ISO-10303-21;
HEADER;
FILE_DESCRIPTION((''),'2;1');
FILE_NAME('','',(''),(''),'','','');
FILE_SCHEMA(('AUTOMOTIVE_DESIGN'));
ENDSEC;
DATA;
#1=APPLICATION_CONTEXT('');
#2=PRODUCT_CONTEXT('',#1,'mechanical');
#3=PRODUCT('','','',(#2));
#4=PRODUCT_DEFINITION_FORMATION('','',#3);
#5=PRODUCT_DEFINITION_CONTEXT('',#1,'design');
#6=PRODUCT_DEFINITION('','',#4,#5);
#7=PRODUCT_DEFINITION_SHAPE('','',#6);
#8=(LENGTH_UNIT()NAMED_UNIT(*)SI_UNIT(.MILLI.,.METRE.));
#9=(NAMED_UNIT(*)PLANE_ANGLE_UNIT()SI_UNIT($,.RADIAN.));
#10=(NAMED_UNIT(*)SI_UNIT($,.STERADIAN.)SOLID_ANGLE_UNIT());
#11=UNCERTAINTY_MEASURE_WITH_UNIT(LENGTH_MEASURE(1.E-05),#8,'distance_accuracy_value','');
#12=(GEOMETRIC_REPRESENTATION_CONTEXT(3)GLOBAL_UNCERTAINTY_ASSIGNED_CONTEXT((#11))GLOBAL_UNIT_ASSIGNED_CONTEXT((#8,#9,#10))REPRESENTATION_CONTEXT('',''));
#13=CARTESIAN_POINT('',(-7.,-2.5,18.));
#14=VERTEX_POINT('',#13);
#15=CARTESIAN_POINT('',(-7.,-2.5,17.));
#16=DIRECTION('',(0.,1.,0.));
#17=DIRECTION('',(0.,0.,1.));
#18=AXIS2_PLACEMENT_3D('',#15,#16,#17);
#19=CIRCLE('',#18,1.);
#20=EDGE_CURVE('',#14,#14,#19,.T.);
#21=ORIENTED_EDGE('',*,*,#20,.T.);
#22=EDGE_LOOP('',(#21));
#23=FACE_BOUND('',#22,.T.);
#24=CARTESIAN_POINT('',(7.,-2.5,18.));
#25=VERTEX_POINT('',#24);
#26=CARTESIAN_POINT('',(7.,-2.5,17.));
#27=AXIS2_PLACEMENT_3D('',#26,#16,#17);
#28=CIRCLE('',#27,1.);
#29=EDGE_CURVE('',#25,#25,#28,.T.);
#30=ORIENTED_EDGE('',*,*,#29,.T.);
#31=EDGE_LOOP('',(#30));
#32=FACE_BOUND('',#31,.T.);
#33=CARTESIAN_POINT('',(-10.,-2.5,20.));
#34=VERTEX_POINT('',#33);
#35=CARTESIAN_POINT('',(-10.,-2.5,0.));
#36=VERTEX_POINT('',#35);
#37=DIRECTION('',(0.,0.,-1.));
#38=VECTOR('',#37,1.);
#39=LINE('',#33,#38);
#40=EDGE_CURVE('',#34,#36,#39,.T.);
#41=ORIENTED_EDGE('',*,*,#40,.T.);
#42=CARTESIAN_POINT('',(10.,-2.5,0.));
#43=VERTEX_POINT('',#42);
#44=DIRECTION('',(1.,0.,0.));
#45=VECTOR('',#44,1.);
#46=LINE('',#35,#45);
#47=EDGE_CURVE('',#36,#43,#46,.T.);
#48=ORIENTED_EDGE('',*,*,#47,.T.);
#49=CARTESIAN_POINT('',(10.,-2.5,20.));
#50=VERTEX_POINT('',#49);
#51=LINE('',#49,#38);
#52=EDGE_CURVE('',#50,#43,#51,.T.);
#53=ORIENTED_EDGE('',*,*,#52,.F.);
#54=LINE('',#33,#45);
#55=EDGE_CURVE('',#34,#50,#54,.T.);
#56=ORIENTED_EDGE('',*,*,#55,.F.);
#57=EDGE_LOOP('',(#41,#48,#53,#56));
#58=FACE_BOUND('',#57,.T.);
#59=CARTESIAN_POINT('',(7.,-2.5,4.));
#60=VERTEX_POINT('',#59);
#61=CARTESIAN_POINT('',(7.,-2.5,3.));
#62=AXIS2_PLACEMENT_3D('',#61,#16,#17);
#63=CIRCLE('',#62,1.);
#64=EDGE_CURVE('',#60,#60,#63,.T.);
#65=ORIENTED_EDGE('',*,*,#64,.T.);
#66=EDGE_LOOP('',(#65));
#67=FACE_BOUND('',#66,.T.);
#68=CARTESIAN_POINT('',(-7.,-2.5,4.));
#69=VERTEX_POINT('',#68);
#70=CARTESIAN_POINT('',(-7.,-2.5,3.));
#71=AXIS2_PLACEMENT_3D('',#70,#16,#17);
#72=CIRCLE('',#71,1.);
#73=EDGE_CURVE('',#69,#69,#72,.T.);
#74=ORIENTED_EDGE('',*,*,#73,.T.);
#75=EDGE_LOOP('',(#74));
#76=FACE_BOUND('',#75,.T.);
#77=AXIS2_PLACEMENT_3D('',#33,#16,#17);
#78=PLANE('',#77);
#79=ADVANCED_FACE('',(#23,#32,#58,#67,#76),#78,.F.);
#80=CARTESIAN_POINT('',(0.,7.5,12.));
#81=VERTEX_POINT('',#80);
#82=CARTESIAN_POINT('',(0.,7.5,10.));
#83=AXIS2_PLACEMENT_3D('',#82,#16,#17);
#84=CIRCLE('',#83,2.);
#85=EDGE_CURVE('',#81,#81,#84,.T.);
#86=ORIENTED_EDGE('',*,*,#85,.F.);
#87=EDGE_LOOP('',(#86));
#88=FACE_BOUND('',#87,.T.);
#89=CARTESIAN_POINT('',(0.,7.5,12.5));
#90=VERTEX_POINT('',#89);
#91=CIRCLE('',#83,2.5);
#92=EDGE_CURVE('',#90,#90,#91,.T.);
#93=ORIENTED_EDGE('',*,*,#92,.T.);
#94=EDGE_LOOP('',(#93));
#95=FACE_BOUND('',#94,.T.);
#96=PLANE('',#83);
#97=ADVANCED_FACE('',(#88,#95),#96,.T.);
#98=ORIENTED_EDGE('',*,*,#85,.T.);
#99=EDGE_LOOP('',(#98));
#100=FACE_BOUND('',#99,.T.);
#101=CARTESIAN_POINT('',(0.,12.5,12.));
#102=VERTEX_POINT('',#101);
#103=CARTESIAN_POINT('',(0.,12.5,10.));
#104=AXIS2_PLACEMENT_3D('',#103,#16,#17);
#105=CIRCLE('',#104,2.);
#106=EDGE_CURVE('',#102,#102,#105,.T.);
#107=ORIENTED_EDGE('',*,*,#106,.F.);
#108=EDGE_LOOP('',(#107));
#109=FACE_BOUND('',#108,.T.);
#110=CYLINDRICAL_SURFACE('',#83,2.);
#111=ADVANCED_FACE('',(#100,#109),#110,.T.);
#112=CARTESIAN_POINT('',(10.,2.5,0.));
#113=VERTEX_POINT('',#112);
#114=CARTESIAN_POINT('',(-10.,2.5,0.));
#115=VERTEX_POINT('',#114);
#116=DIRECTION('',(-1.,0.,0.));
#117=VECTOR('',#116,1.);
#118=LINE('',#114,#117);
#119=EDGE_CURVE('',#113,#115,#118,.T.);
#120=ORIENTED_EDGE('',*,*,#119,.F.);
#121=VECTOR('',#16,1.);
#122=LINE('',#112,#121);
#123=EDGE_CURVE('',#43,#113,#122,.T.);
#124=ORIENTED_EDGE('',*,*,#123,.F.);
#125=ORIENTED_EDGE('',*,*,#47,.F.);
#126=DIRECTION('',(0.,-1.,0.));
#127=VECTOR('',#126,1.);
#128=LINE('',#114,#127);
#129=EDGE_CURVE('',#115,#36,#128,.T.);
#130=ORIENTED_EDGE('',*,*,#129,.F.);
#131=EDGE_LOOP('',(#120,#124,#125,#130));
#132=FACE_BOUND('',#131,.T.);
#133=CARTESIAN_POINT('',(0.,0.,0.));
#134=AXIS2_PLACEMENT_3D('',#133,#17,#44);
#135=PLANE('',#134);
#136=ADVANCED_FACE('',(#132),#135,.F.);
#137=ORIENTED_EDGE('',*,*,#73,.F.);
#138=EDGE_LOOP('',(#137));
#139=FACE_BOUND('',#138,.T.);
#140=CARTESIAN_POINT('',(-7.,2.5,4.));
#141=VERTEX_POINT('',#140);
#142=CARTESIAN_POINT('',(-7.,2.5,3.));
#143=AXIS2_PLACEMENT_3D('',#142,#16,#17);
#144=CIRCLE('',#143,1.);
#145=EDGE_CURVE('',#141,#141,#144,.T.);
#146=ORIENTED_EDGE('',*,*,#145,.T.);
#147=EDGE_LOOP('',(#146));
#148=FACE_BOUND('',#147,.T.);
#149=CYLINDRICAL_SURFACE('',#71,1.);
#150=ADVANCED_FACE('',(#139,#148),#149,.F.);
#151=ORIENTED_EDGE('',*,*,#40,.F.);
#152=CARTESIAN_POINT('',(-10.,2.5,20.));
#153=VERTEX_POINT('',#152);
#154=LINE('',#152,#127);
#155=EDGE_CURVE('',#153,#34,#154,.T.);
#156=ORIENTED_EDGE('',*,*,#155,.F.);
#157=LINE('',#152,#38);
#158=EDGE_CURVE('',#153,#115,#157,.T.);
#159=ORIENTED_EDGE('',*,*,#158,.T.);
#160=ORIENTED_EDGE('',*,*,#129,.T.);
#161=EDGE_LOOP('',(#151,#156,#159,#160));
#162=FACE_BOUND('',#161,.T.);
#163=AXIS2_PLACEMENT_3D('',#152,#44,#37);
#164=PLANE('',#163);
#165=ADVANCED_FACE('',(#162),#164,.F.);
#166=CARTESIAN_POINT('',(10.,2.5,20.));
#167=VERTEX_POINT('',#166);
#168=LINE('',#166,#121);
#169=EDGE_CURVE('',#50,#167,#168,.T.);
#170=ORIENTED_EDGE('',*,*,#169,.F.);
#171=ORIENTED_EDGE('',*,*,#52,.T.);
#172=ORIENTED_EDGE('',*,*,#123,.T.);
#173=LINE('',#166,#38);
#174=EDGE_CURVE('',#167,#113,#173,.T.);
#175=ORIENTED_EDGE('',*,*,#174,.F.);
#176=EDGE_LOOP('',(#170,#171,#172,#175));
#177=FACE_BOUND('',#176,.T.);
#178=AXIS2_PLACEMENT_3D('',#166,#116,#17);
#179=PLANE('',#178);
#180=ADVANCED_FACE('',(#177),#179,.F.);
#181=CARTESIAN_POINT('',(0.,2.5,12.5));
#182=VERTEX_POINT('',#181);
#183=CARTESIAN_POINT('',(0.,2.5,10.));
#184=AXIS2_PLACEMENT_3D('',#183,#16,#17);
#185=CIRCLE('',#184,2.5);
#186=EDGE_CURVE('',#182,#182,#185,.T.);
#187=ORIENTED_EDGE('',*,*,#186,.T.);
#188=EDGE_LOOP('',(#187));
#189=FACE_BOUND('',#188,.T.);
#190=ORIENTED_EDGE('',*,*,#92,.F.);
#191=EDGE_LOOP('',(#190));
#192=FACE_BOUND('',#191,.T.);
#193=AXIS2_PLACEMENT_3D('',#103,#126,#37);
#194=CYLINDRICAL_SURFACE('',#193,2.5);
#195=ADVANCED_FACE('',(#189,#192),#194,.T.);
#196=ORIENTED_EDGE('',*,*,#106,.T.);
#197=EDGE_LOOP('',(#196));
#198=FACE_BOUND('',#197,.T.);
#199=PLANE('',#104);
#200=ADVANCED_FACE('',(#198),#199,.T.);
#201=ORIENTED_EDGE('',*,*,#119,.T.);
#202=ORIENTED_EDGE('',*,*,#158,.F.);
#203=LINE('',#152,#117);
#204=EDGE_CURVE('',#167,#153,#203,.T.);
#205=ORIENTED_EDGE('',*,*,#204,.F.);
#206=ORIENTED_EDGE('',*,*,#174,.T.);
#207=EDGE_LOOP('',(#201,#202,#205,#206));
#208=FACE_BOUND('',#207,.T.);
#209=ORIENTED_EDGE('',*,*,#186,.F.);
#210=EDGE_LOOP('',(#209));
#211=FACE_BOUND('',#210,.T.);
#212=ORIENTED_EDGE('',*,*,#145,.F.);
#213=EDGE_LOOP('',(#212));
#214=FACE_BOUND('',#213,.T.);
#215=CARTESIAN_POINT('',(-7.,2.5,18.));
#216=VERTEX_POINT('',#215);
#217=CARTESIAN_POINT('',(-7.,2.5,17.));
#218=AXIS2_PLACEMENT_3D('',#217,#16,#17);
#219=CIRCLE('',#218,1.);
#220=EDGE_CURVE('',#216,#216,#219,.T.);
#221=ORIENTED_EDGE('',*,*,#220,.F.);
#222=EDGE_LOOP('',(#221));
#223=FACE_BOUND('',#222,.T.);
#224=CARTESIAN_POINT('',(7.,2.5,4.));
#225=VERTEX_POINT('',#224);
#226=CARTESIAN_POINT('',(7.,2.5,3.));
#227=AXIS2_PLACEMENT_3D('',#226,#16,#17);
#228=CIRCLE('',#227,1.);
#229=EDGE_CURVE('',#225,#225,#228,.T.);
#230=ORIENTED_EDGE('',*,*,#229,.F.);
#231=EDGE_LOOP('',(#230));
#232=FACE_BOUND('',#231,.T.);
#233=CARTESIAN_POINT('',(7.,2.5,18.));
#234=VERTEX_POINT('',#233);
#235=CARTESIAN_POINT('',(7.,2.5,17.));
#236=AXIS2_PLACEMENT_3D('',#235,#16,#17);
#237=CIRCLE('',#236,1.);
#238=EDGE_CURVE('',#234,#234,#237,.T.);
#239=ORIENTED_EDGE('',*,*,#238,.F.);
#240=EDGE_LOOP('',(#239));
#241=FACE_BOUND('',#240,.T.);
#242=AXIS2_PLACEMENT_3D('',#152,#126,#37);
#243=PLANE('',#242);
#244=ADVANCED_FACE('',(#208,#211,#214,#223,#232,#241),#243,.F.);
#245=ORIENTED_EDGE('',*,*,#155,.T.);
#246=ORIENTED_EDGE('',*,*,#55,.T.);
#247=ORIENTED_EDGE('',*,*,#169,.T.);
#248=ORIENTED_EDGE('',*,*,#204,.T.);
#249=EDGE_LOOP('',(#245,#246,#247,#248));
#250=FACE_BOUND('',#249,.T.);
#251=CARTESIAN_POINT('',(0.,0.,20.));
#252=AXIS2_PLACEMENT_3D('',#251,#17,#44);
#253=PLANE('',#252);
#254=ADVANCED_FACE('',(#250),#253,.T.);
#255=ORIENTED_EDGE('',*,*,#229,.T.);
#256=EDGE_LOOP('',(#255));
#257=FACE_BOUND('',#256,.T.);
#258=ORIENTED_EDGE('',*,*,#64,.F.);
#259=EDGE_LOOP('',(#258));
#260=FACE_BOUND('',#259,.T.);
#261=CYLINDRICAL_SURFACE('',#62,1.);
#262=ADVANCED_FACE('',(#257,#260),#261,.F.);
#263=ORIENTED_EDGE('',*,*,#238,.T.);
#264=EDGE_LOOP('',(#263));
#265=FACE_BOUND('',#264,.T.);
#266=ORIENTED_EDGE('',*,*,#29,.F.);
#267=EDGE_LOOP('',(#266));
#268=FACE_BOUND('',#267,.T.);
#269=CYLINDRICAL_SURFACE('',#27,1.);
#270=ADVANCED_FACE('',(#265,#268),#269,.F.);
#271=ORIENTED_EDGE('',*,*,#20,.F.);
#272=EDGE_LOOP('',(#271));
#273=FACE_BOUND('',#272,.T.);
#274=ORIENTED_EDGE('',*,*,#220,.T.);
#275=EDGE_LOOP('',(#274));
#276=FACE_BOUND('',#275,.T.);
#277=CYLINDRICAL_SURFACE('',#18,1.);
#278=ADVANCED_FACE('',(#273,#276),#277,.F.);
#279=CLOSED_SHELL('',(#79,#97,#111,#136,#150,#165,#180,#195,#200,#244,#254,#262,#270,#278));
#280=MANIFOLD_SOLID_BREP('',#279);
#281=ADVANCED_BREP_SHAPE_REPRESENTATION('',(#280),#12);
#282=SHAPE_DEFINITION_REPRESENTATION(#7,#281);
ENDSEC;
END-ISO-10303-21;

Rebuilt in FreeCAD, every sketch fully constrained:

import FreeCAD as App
import Part
import Sketcher
from FreeCAD import Vector
Q = App.Units.Quantity

doc = App.newDocument("Part")
body = doc.addObject("PartDesign::Body", "Body")

# Sketch on XY plane
sketch1 = doc.addObject("Sketcher::SketchObject", "Sketch")
body.addObject(sketch1)
sketch1.AttachmentSupport = (doc.XY_Plane, [""])
sketch1.MapMode = "FlatFace"
sketch1.addGeometry(Part.LineSegment(Vector(-10, 2, 0), Vector(-10, -2, 0)), False)
sketch1.addGeometry(Part.LineSegment(Vector(-10, -2, 0), Vector(10, -2, 0)), False)
sketch1.addGeometry(Part.LineSegment(Vector(10, -2, 0), Vector(10, 2, 0)), False)
sketch1.addGeometry(Part.LineSegment(Vector(10, 2, 0), Vector(-10, 2, 0)), False)
sketch1.addConstraint(Sketcher.Constraint("Coincident", 0, 2, 1, 1))
sketch1.addConstraint(Sketcher.Constraint("Coincident", 1, 2, 2, 1))
sketch1.addConstraint(Sketcher.Constraint("Coincident", 2, 2, 3, 1))
sketch1.addConstraint(Sketcher.Constraint("Coincident", 3, 2, 0, 1))
sketch1.addConstraint(Sketcher.Constraint("Vertical", 0))
sketch1.addConstraint(Sketcher.Constraint("Horizontal", 1))
sketch1.addConstraint(Sketcher.Constraint("Vertical", 2))
sketch1.addConstraint(Sketcher.Constraint("Horizontal", 3))
sketch1.addConstraint(Sketcher.Constraint("Symmetric", 0, 2, 2, 2, -1, 1))
sketch1.addConstraint(Sketcher.Constraint("DistanceX", 1, 1, 1, 2, Q("20 mm")))
sketch1.addConstraint(Sketcher.Constraint("DistanceY", 0, 2, 0, 1, Q("5 mm")))
pad1 = doc.addObject("PartDesign::Pad", "Pad")
body.addObject(pad1)
pad1.Profile = sketch1
pad1.Length = 20

# Sketch on XZ plane
sketch2 = doc.addObject("Sketcher::SketchObject", "Sketch001")
body.addObject(sketch2)
sketch2.AttachmentSupport = (doc.XZ_Plane, [""])
sketch2.MapMode = "FlatFace"
sketch2.AttachmentOffset = App.Placement(Vector(0, 0, -2.5), App.Rotation())
sketch2.addGeometry(Part.Circle(Vector(0, 10, 0), Vector(0, 0, 1), 2.5), False)
sketch2.addConstraint(Sketcher.Constraint("PointOnObject", 0, 3, -2))
sketch2.addConstraint(Sketcher.Constraint("Diameter", 0, Q("5 mm")))
sketch2.addConstraint(Sketcher.Constraint("DistanceY", -1, 1, 0, 3, Q("10 mm")))
pad2 = doc.addObject("PartDesign::Pad", "Pad001")
body.addObject(pad2)
pad2.Profile = sketch2
pad2.Length = 10
pad2.Reversed = True

# Sketch on XZ plane
sketch3 = doc.addObject("Sketcher::SketchObject", "Sketch002")
body.addObject(sketch3)
sketch3.AttachmentSupport = (doc.XZ_Plane, [""])
sketch3.MapMode = "FlatFace"
sketch3.AttachmentOffset = App.Placement(Vector(0, 0, -2.5), App.Rotation())
sketch3.addGeometry(Part.Circle(Vector(-7, 3, 0), Vector(0, 0, 1), 1), False)
sketch3.addGeometry(Part.Circle(Vector(7, 3, 0), Vector(0, 0, 1), 1), False)
sketch3.addGeometry(Part.Circle(Vector(-7, 17, 0), Vector(0, 0, 1), 1), False)
sketch3.addGeometry(Part.Circle(Vector(7, 17, 0), Vector(0, 0, 1), 1), False)
sketch3.addConstraint(Sketcher.Constraint("Equal", 0, 1))
sketch3.addConstraint(Sketcher.Constraint("Equal", 1, 2))
sketch3.addConstraint(Sketcher.Constraint("Equal", 2, 3))
sketch3.addConstraint(Sketcher.Constraint("Symmetric", 0, 3, 1, 3, -2))
sketch3.addConstraint(Sketcher.Constraint("Symmetric", 2, 3, 3, 3, -2))
sketch3.addConstraint(Sketcher.Constraint("Vertical", 0, 3, 2, 3))
sketch3.addConstraint(Sketcher.Constraint("Diameter", 0, Q("2 mm")))
sketch3.addConstraint(Sketcher.Constraint("DistanceX", 0, 3, -1, 1, Q("7 mm")))
sketch3.addConstraint(Sketcher.Constraint("DistanceY", -1, 1, 0, 3, Q("3 mm")))
sketch3.addConstraint(Sketcher.Constraint("DistanceY", -1, 1, 2, 3, Q("17 mm")))
pocket1 = doc.addObject("PartDesign::Pocket", "Pocket")
body.addObject(pocket1)
pocket1.Profile = sketch3
pocket1.Type = "ThroughAll"
pocket1.Reversed = True

# Sketch on XZ plane
sketch4 = doc.addObject("Sketcher::SketchObject", "Sketch003")
body.addObject(sketch4)
sketch4.AttachmentSupport = (doc.XZ_Plane, [""])
sketch4.MapMode = "FlatFace"
sketch4.AttachmentOffset = App.Placement(Vector(0, 0, -7.5), App.Rotation())
sketch4.addGeometry(Part.Circle(Vector(0, 10, 0), Vector(0, 0, 1), 2.5), False)
sketch4.addGeometry(Part.Circle(Vector(0, 10, 0), Vector(0, 0, 1), 2), False)
sketch4.addConstraint(Sketcher.Constraint("Coincident", 1, 3, 0, 3))
sketch4.addConstraint(Sketcher.Constraint("PointOnObject", 0, 3, -2))
sketch4.addConstraint(Sketcher.Constraint("Diameter", 0, Q("5 mm")))
sketch4.addConstraint(Sketcher.Constraint("Diameter", 1, Q("4 mm")))
sketch4.addConstraint(Sketcher.Constraint("DistanceY", -1, 1, 0, 3, Q("10 mm")))
pocket2 = doc.addObject("PartDesign::Pocket", "Pocket001")
body.addObject(pocket2)
pocket2.Profile = sketch4
pocket2.Length = 5

doc.recompute()
